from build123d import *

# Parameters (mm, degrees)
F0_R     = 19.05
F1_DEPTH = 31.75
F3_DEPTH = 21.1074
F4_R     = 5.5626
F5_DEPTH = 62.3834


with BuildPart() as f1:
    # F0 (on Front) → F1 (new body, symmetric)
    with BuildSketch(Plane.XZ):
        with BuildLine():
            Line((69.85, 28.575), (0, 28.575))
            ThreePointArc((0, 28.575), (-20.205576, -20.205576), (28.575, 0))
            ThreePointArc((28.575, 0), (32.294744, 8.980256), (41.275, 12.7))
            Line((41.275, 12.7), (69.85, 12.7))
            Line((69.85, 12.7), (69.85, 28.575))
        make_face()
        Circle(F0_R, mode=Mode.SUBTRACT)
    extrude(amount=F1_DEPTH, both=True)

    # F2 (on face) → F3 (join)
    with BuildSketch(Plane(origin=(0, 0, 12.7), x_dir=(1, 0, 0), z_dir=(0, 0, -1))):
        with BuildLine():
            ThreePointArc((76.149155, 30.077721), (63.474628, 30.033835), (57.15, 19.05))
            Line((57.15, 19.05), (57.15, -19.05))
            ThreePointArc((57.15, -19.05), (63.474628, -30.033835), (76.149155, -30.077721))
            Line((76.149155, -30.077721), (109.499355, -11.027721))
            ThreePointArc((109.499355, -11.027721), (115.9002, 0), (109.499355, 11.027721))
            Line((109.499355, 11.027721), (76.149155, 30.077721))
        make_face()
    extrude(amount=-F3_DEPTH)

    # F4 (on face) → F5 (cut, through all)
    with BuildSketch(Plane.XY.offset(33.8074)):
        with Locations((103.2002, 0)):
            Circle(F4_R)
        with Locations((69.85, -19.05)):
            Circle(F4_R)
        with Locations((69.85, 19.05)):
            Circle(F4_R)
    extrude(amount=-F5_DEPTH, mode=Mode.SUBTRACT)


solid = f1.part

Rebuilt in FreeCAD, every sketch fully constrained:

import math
import FreeCAD as App
import Part
import Sketcher
from FreeCAD import Vector
Q = App.Units.Quantity

doc = App.newDocument("Part")
body = doc.addObject("PartDesign::Body", "Body")

# Sketch on XZ plane
sketch1 = body.newObject("Sketcher::SketchObject", "Sketch")
sketch1.AttachmentSupport = (doc.getObject("XZ_Plane"), [""])
sketch1.MapMode = "FlatFace"
sketch1.addGeometry([
    Part.LineSegment(Vector(69.85, 28.575, 0), Vector(0, 28.575, 0)),  # 0
    Part.ArcOfCircle(Part.Circle(Vector(0, 0, 0), Vector(0, 0, 1), 28.575), math.radians(90), math.radians(360)),  # 1
    Part.ArcOfCircle(Part.Circle(Vector(41.275, 0, 0), Vector(0, 0, 1), 12.7), math.radians(90.000002), math.radians(179.999998)),  # 2
    Part.LineSegment(Vector(41.275, 12.7, 0), Vector(69.85, 12.7, 0)),  # 3
    Part.LineSegment(Vector(69.85, 12.7, 0), Vector(69.85, 28.575, 0)),  # 4
    Part.Circle(Vector(0, 0, 0), Vector(0, 0, 1), 19.05),  # 5
], False)
sketch1.addConstraint([
    Sketcher.Constraint("Tangent", 0, 2, 1, 1),
    Sketcher.Constraint("Tangent", 1, 2, 2, 2),
    Sketcher.Constraint("Tangent", 2, 1, 3, 1),
    Sketcher.Constraint("Coincident", 3, 2, 4, 1),
    Sketcher.Constraint("Coincident", 4, 2, 0, 1),
    Sketcher.Constraint("Horizontal", 0),
    Sketcher.Constraint("Horizontal", 3),
    Sketcher.Constraint("Vertical", 4),
    Sketcher.Constraint("Coincident", 1, 3, -1, 1),
    Sketcher.Constraint("Coincident", 5, 3, -1, 1),
    Sketcher.Constraint("PointOnObject", 2, 3, -1),
    Sketcher.Constraint("Diameter", 5, Q("1.5 in")),
    Sketcher.Constraint("Radius", 2, Q("0.5 in")),
    Sketcher.Constraint("Radius", 1, Q("1.125 in")),
    Sketcher.Constraint("DistanceX", 0, 2, 0, 1, Q("2.75 in")),
])
pad1 = body.newObject("PartDesign::Pad", "Pad")
pad1.Profile = sketch1
pad1.Length = Q("2.5 in")
pad1.Midplane = True

# Sketch on XY plane
sketch2 = body.newObject("Sketcher::SketchObject", "Sketch001")
sketch2.AttachmentSupport = (doc.getObject("XY_Plane"), [""])
sketch2.MapMode = "FlatFace"
sketch2.AttachmentOffset = App.Placement(Vector(0, 0, 0.5 * 25.4), App.Rotation())
sketch2.addGeometry([
    Part.ArcOfCircle(Part.Circle(Vector(69.849999, -19.05, 0), Vector(0, 0, 1), 12.699999), math.radians(179.999999), math.radians(299.735484)),  # 0
    Part.LineSegment(Vector(57.15, -19.05, 0), Vector(57.15, 19.05, 0)),  # 1
    Part.ArcOfCircle(Part.Circle(Vector(69.849999, 19.05, 0), Vector(0, 0, 1), 12.699999), math.radians(60.264516), math.radians(180.000001)),  # 2
    Part.LineSegment(Vector(76.149155, 30.077721, 0), Vector(109.499355, 11.027721, 0)),  # 3
    Part.ArcOfCircle(Part.Circle(Vector(103.200201, 0, 0), Vector(0, 0, 1), 12.699999), math.radians(-60.264524), math.radians(60.264524)),  # 4
    Part.LineSegment(Vector(109.499355, -11.027721, 0), Vector(76.149155, -30.077721, 0)),  # 5
], False)
sketch2.addConstraint([
    Sketcher.Constraint("Tangent", 0, 1, 1, 1),
    Sketcher.Constraint("Tangent", 1, 2, 2, 2),
    Sketcher.Constraint("Tangent", 2, 1, 3, 1),
    Sketcher.Constraint("Tangent", 3, 2, 4, 2),
    Sketcher.Constraint("Tangent", 4, 1, 5, 1),
    Sketcher.Constraint("Tangent", 5, 2, 0, 2),
    Sketcher.Constraint("Vertical", 1),
    Sketcher.Constraint("Equal", 0, 2),
    Sketcher.Constraint("Equal", 2, 4),
    Sketcher.Constraint("Symmetric", 3, 2, 4, 1, -1),
    Sketcher.Constraint("Radius", 0, Q("0.5 in")),
    Sketcher.Constraint("DistanceY", 1, 1, 1, 2, Q("1.5 in")),
    Sketcher.Constraint("DistanceX", -1, 1, 0, 3, Q("2.75 in")),
    Sketcher.Constraint("DistanceX", -1, 1, 4, 3, Q("4.063 in")),
])
pad2 = body.newObject("PartDesign::Pad", "Pad001")
pad2.Profile = sketch2
pad2.Length = Q("0.831 in")

# Sketch on XY plane
sketch3 = body.newObject("Sketcher::SketchObject", "Sketch002")
sketch3.AttachmentSupport = (doc.getObject("XY_Plane"), [""])
sketch3.MapMode = "FlatFace"
sketch3.AttachmentOffset = App.Placement(Vector(0, 0, 1.331 * 25.4), App.Rotation())
sketch3.addGeometry([
    Part.Circle(Vector(103.2002, 0, 0), Vector(0, 0, 1), 5.5626),
    Part.Circle(Vector(69.85, -19.05, 0), Vector(0, 0, 1), 5.5626),
    Part.Circle(Vector(69.85, 19.05, 0), Vector(0, 0, 1), 5.5626),
], False)
sketch3.addConstraint([
    Sketcher.Constraint("Equal", 0, 1),
    Sketcher.Constraint("Equal", 1, 2),
    Sketcher.Constraint("Symmetric", 1, 3, 2, 3, -1),
    Sketcher.Constraint("PointOnObject", 0, 3, -1),
    Sketcher.Constraint("Diameter", 0, Q("0.438 in")),
    Sketcher.Constraint("DistanceY", 1, 3, 2, 3, Q("1.5 in")),
    Sketcher.Constraint("DistanceX", -1, 1, 1, 3, Q("2.75 in")),
    Sketcher.Constraint("DistanceX", -1, 1, 0, 3, Q("4.063 in")),
])
pocket1 = body.newObject("PartDesign::Pocket", "Pocket")
pocket1.Profile = sketch3
pocket1.Type = "ThroughAll"

doc.recompute()
